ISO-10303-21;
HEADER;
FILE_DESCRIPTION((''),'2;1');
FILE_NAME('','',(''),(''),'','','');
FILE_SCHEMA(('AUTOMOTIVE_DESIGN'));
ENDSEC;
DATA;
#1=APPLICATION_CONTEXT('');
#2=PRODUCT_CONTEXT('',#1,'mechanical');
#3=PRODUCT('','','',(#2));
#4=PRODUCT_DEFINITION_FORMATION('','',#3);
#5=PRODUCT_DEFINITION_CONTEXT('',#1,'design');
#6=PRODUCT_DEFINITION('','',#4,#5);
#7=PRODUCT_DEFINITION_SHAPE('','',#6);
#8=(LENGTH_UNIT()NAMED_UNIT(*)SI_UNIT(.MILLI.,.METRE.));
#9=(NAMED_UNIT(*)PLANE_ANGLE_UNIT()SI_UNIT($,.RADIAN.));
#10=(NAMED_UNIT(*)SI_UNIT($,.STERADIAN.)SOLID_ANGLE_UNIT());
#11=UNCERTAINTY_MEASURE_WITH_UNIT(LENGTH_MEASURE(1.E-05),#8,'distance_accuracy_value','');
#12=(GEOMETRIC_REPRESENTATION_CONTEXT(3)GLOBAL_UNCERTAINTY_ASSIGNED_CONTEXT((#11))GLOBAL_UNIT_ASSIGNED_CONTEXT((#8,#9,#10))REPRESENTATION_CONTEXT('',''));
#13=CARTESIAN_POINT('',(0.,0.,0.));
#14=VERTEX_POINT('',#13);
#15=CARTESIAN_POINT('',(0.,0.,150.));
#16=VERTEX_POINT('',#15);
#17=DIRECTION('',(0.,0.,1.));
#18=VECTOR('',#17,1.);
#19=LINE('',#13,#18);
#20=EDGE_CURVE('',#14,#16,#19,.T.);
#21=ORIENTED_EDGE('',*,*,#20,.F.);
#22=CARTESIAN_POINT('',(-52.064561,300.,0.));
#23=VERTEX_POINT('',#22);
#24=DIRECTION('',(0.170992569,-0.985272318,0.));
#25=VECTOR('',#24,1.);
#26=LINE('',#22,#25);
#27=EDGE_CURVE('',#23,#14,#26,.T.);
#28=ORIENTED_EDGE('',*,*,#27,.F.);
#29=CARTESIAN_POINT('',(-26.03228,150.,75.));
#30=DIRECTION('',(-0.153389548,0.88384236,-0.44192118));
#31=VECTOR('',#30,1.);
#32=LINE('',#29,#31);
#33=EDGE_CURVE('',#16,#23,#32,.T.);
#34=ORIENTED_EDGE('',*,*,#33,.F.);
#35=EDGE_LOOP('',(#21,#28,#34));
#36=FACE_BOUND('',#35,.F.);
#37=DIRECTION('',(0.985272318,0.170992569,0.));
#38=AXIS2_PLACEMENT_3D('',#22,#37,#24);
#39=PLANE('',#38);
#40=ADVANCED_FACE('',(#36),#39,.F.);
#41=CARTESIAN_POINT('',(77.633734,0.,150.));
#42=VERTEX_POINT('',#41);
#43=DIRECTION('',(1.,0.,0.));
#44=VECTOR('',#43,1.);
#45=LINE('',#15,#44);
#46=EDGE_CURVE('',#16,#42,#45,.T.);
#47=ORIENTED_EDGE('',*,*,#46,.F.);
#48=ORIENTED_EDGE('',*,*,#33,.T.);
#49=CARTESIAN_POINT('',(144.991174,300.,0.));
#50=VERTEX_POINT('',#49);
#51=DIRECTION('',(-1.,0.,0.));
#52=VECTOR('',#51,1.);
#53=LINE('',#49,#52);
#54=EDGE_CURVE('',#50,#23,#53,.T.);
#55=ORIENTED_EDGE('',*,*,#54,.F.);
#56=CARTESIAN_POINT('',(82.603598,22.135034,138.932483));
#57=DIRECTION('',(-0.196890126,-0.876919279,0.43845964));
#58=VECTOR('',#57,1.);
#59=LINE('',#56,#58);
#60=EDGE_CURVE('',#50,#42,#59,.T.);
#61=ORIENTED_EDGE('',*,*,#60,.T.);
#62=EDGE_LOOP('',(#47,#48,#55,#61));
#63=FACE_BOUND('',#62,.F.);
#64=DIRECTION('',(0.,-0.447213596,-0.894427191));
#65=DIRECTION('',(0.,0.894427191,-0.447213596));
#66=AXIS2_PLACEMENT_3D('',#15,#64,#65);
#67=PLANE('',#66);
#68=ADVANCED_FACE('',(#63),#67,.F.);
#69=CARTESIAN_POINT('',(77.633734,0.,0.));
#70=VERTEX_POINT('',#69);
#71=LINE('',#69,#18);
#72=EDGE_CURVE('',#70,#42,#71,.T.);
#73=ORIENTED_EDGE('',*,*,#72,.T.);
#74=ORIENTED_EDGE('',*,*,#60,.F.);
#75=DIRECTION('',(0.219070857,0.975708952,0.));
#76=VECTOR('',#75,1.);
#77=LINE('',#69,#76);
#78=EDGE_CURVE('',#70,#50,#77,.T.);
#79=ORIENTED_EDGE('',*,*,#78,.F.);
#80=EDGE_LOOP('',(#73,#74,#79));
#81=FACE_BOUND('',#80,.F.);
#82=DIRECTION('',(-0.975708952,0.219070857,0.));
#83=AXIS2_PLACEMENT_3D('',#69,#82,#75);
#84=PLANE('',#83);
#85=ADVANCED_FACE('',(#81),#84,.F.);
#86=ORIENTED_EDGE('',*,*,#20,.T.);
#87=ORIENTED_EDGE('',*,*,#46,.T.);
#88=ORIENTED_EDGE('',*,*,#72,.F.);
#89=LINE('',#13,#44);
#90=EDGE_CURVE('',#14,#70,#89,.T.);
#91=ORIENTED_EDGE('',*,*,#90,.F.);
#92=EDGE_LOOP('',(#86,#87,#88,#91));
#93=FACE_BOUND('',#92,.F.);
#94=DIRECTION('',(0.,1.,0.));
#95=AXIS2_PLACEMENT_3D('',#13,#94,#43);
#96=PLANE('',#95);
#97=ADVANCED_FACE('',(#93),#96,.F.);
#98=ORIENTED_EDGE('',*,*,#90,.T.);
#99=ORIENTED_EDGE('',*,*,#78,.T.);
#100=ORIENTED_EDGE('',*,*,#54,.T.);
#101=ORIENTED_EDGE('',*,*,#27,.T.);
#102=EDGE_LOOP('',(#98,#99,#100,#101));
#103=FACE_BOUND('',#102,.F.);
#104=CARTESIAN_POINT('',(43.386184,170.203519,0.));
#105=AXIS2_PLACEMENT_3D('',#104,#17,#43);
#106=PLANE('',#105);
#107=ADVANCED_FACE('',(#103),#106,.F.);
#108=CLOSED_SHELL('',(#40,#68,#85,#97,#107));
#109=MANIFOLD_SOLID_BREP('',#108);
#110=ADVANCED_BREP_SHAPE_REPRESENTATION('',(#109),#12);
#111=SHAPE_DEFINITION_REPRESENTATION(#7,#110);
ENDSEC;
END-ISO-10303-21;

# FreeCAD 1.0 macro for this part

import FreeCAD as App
import Part
import Sketcher

V = App.Vector

doc = App.newDocument("Part")
params = doc.addObject("Spreadsheet::Sheet", "Params")
for row, (alias, value) in enumerate([
    ("pad1_length", "150 mm"),
    ("sketch2_width", "300 mm"),
    ("sketch2_height", "150 mm"),
    ("pocket1_length", "1000 mm"),
], start=1):
    params.set(f"A{row}", alias)
    params.set(f"B{row}", "=" + value)
    params.setAlias(f"B{row}", alias)

body = doc.addObject("PartDesign::Body", "Body")

sketch1 = body.newObject("Sketcher::SketchObject", "Sketch")
sketch1.AttachmentSupport = (doc.getObject("XY_Plane"), [""])
sketch1.MapMode = "FlatFace"
sketch1.addGeometry([
    Part.LineSegment(V(145, 300, 0), V(-52, 300, 0)),
    Part.LineSegment(V(-52, 300, 0), V(0, 0, 0)),
    Part.LineSegment(V(0, 0, 0), V(78, 0, 0)),
    Part.LineSegment(V(78, 0, 0), V(145, 300, 0)),
], False)
sketch1.addConstraint([
    Sketcher.Constraint("Coincident", 0, 2, 1, 1),
    Sketcher.Constraint("Coincident", 1, 2, 2, 1),
    Sketcher.Constraint("Coincident", 2, 2, 3, 1),
    Sketcher.Constraint("Coincident", 3, 2, 0, 1),
    Sketcher.Constraint("Horizontal", 0),
    Sketcher.Constraint("Horizontal", 2),
    Sketcher.Constraint("Coincident", 1, 2, -1, 1),
    Sketcher.Constraint("DistanceY", -1, 1, 0, 2, 300.0),
    Sketcher.Constraint("Distance", 1, 304.484349),
    Sketcher.Constraint("DistanceX", 0, 2, 0, 1, 197.055735),
    Sketcher.Constraint("DistanceX", 2, 1, 2, 2, 77.633734),
])
pad1 = body.newObject("PartDesign::Pad", "Pad")
pad1.Profile = sketch1
pad1.setExpression("Length", "Params.pad1_length")

sketch2 = body.newObject("Sketcher::SketchObject", "Sketch001")
sketch2.AttachmentSupport = (doc.getObject("YZ_Plane"), [""])
sketch2.MapMode = "FlatFace"
sketch2.addGeometry([
    Part.LineSegment(V(0, 150, 0), V(300, 0, 0)),
    Part.LineSegment(V(300, 0, 0), V(300, 150, 0)),
    Part.LineSegment(V(300, 150, 0), V(0, 150, 0)),
], False)
sketch2.addConstraint([
    Sketcher.Constraint("Coincident", 0, 2, 1, 1),
    Sketcher.Constraint("Coincident", 1, 2, 2, 1),
    Sketcher.Constraint("Coincident", 2, 2, 0, 1),
    Sketcher.Constraint("Vertical", 1),
    Sketcher.Constraint("Horizontal", 2),
    Sketcher.Constraint("PointOnObject", 0, 2, -1),
    Sketcher.Constraint("PointOnObject", 2, 2, -2),
    Sketcher.Constraint("DistanceX", 2, 2, 2, 1, 300.0),
    Sketcher.Constraint("DistanceY", 1, 1, 1, 2, 150.0),
])
sketch2.setExpression("Constraints[7]", "Params.sketch2_width")
sketch2.setExpression("Constraints[8]", "Params.sketch2_height")
pocket1 = body.newObject("PartDesign::Pocket", "Pocket")
pocket1.Profile = sketch2
pocket1.setExpression("Length", "Params.pocket1_length")
pocket1.Midplane = True

doc.recompute()
